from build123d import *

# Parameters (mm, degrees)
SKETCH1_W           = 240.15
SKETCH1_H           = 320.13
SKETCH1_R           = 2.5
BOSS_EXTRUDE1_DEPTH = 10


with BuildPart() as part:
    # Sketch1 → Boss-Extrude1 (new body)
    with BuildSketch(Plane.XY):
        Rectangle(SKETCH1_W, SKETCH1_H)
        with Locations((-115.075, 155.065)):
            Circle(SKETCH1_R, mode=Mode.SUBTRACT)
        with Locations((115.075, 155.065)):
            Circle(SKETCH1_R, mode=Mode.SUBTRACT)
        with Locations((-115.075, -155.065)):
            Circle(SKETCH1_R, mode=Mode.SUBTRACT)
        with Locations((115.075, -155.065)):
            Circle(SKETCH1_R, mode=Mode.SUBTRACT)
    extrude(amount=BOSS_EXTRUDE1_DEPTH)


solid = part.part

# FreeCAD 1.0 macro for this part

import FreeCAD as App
import Part
import Sketcher
from FreeCAD import Vector


def add_polygon(sketch, points):
    """Adds a closed chain of lines whose ends are joined by coincident constraints."""
    first, n = sketch.GeometryCount, len(points)
    for a, b in zip(points, points[1:] + points[:1]):
        sketch.addGeometry(Part.LineSegment(App.Vector(*a, 0), App.Vector(*b, 0)), False)
    for i in range(n):
        sketch.addConstraint(Sketcher.Constraint("Coincident", first + i, 2, first + (i + 1) % n, 1))

doc = App.newDocument("Part")
body = doc.addObject("PartDesign::Body", "Body")

# Sketch on XY plane
sketch1 = doc.addObject("Sketcher::SketchObject", "Sketch")
body.addObject(sketch1)
sketch1.AttachmentSupport = (doc.XY_Plane, [""])
sketch1.MapMode = "FlatFace"
add_polygon(sketch1, [(-120.1, 160.1), (-120.1, -160.1), (120.1, -160.1), (120.1, 160.1)])  # lines 0-3
sketch1.addGeometry(Part.Circle(Vector(-115.1, -155.1, 0), Vector(0, 0, 1), 2.5), False)  # 4
sketch1.addGeometry(Part.Circle(Vector(115.1, -155.1, 0), Vector(0, 0, 1), 2.5), False)  # 5
sketch1.addGeometry(Part.Circle(Vector(-115.1, 155.1, 0), Vector(0, 0, 1), 2.5), False)  # 6
sketch1.addGeometry(Part.Circle(Vector(115.1, 155.1, 0), Vector(0, 0, 1), 2.5), False)  # 7
sketch1.addConstraint(Sketcher.Constraint("Vertical", 0))
sketch1.addConstraint(Sketcher.Constraint("Horizontal", 1))
sketch1.addConstraint(Sketcher.Constraint("Vertical", 2))
sketch1.addConstraint(Sketcher.Constraint("Horizontal", 3))
sketch1.addConstraint(Sketcher.Constraint("Equal", 4, 5))
sketch1.addConstraint(Sketcher.Constraint("Equal", 5, 6))
sketch1.addConstraint(Sketcher.Constraint("Equal", 6, 7))
sketch1.addConstraint(Sketcher.Constraint("Symmetric", 5, 3, 6, 3, -1, 1))
sketch1.addConstraint(Sketcher.Constraint("Symmetric", 4, 3, 7, 3, -1, 1))
sketch1.addConstraint(Sketcher.Constraint("Symmetric", 0, 2, 2, 2, -1, 1))
sketch1.addConstraint(Sketcher.Constraint("Symmetric", 4, 3, 5, 3, -2))
sketch1.addConstraint(Sketcher.Constraint("Diameter", 4, 5.0))
sketch1.addConstraint(Sketcher.Constraint("DistanceX", 0, 2, 4, 3, 5.0))
sketch1.addConstraint(Sketcher.Constraint("DistanceY", 0, 2, 4, 3, 5.0))
sketch1.addConstraint(Sketcher.Constraint("DistanceX", 1, 1, 1, 2, 240.15))
sketch1.addConstraint(Sketcher.Constraint("DistanceY", 0, 2, 0, 1, 320.13))
pad1 = doc.addObject("PartDesign::Pad", "Pad")
body.addObject(pad1)
pad1.Profile = sketch1
pad1.Length = 10

doc.recompute()
